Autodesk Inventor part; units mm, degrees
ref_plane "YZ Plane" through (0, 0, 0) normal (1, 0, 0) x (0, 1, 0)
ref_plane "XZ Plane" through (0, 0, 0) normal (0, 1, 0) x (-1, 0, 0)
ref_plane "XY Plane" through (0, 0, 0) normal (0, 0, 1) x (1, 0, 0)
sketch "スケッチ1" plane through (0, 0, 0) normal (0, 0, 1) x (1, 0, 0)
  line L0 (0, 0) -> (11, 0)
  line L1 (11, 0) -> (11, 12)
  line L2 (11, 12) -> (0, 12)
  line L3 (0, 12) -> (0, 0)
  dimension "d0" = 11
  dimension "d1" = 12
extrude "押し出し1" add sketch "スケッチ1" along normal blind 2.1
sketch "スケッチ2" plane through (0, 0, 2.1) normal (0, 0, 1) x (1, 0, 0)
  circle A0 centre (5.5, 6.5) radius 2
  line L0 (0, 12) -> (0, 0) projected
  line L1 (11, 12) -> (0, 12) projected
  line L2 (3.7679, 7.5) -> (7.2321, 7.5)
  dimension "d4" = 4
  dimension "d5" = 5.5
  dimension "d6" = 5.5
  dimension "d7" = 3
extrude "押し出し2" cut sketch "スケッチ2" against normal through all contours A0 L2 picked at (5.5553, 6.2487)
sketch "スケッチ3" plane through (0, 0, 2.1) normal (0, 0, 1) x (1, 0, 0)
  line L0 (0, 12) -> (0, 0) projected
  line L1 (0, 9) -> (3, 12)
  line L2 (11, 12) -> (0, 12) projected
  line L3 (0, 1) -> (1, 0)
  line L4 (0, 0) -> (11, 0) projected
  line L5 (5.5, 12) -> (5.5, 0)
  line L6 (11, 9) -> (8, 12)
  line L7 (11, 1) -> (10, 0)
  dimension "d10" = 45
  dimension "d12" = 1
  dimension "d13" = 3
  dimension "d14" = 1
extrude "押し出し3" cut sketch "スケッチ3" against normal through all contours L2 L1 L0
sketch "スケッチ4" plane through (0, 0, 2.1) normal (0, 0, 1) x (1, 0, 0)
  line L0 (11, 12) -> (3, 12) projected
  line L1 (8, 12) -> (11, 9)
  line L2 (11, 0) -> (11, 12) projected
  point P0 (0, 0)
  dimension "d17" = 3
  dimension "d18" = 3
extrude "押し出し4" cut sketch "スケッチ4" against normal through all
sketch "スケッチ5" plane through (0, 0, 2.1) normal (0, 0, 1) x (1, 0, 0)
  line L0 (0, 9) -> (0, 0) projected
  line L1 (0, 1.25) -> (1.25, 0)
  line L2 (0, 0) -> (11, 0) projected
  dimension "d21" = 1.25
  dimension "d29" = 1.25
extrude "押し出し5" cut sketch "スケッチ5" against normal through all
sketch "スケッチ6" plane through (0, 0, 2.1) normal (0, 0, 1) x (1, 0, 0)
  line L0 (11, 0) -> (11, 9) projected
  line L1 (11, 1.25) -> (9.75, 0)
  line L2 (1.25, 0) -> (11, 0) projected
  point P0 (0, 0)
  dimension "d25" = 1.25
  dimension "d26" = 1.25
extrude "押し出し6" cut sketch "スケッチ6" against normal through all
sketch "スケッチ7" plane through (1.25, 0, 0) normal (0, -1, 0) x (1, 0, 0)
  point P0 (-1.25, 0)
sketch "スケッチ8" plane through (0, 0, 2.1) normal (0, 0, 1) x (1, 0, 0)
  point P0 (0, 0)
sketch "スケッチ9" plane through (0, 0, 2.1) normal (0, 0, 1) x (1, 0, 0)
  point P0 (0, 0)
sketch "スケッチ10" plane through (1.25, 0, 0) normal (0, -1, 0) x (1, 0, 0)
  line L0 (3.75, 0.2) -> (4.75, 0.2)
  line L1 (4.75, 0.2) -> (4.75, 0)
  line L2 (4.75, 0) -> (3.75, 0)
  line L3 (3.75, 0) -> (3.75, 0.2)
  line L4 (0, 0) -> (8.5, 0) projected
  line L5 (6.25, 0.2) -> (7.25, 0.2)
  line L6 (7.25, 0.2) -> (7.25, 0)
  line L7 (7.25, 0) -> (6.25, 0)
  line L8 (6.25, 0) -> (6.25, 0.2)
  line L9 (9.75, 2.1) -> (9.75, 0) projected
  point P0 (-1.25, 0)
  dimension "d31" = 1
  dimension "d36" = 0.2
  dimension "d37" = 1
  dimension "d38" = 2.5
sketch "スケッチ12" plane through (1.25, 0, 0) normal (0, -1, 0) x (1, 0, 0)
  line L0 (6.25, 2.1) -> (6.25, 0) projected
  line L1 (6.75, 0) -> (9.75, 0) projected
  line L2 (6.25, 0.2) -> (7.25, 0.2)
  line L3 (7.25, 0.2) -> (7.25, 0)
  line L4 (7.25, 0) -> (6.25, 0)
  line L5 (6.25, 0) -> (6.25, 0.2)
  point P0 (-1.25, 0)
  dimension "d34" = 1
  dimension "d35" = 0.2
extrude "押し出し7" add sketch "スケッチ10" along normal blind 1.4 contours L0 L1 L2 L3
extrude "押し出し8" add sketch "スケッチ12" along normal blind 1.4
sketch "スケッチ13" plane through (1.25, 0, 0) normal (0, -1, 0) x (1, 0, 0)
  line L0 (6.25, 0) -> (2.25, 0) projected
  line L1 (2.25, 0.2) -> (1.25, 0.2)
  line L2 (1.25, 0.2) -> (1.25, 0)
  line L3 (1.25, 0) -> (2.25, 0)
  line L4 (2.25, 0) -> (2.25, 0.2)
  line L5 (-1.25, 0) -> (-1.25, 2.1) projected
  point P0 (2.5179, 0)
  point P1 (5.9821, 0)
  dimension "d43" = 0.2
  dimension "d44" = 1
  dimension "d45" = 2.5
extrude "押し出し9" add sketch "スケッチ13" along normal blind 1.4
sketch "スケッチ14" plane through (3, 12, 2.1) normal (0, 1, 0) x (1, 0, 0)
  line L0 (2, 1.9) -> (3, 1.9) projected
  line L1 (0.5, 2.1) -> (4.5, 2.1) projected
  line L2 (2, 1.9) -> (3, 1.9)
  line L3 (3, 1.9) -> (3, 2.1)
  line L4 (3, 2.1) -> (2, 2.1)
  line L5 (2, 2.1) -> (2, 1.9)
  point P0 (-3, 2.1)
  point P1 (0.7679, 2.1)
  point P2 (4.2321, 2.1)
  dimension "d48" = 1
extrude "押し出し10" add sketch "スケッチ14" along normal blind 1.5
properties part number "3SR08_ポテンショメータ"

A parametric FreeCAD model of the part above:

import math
import FreeCAD as App
import Part
import Sketcher
from FreeCAD import Vector
Q = App.Units.Quantity

doc = App.newDocument("Part")
body = doc.addObject("PartDesign::Body", "Body")

# Sketch on XY plane
sketch1 = body.newObject("Sketcher::SketchObject", "Sketch")
sketch1.AttachmentSupport = (doc.getObject("XY_Plane"), [""])
sketch1.MapMode = "FlatFace"
sketch1.addGeometry([
    Part.LineSegment(Vector(0, 12, 0), Vector(0, 0, 0)),
    Part.LineSegment(Vector(0, 0, 0), Vector(11, 0, 0)),
    Part.LineSegment(Vector(11, 0, 0), Vector(11, 12, 0)),
    Part.LineSegment(Vector(11, 12, 0), Vector(0, 12, 0)),
], False)
sketch1.addConstraint([
    Sketcher.Constraint("Coincident", 0, 2, 1, 1),
    Sketcher.Constraint("Coincident", 1, 2, 2, 1),
    Sketcher.Constraint("Coincident", 2, 2, 3, 1),
    Sketcher.Constraint("Coincident", 3, 2, 0, 1),
    Sketcher.Constraint("Vertical", 0),
    Sketcher.Constraint("Horizontal", 1),
    Sketcher.Constraint("Vertical", 2),
    Sketcher.Constraint("Horizontal", 3),
    Sketcher.Constraint("Coincident", 0, 2, -1, 1),
    Sketcher.Constraint("DistanceX", 1, 1, 1, 2, Q("11 mm")),
    Sketcher.Constraint("DistanceY", 0, 2, 0, 1, Q("12 mm")),
])
pad1 = body.newObject("PartDesign::Pad", "Pad")
pad1.Profile = sketch1
pad1.Length = 2.1

# Sketch on XY plane
sketch2 = body.newObject("Sketcher::SketchObject", "Sketch001")
sketch2.AttachmentSupport = (doc.getObject("XY_Plane"), [""])
sketch2.MapMode = "FlatFace"
sketch2.AttachmentOffset = App.Placement(Vector(0, 0, 2.1), App.Rotation())
sketch2.addGeometry([
    Part.ArcOfCircle(Part.Circle(Vector(5.5, 6.5, 0), Vector(0, 0, 1), 2), math.radians(150), math.radians(390)),
    Part.LineSegment(Vector(3.8, 7.5, 0), Vector(7.2, 7.5, 0)),
], False)
sketch2.addConstraint([
    Sketcher.Constraint("Coincident", 0, 1, 1, 1),
    Sketcher.Constraint("Coincident", 1, 2, 0, 2),
    Sketcher.Constraint("Horizontal", 1),
    Sketcher.Constraint("Radius", 0, Q("2 mm")),
    Sketcher.Constraint("DistanceX", -1, 1, 0, 3, Q("5.5 mm")),
    Sketcher.Constraint("DistanceY", 0, 3, 0, 1, Q("1 mm")),
    Sketcher.Constraint("DistanceY", -1, 1, 0, 3, Q("6.5 mm")),
])
pocket1 = body.newObject("PartDesign::Pocket", "Pocket")
pocket1.Profile = sketch2
pocket1.Type = "ThroughAll"

# Sketch on XY plane
sketch3 = body.newObject("Sketcher::SketchObject", "Sketch002")
sketch3.AttachmentSupport = (doc.getObject("XY_Plane"), [""])
sketch3.MapMode = "FlatFace"
sketch3.AttachmentOffset = App.Placement(Vector(0, 0, 2.1), App.Rotation())
sketch3.addGeometry([
    Part.LineSegment(Vector(3, 12, 0), Vector(0, 12, 0)),
    Part.LineSegment(Vector(0, 12, 0), Vector(0, 9, 0)),
    Part.LineSegment(Vector(0, 9, 0), Vector(3, 12, 0)),
], False)
sketch3.addConstraint([
    Sketcher.Constraint("Coincident", 0, 2, 1, 1),
    Sketcher.Constraint("Coincident", 1, 2, 2, 1),
    Sketcher.Constraint("Coincident", 2, 2, 0, 1),
    Sketcher.Constraint("Horizontal", 0),
    Sketcher.Constraint("Vertical", 1),
    Sketcher.Constraint("PointOnObject", 0, 2, -2),
    Sketcher.Constraint("Equal", 0, 1),
    Sketcher.Constraint("DistanceX", 0, 2, 0, 1, Q("3 mm")),
    Sketcher.Constraint("DistanceY", -1, 1, 0, 2, Q("12 mm")),
])
pocket2 = body.newObject("PartDesign::Pocket", "Pocket001")
pocket2.Profile = sketch3
pocket2.Type = "ThroughAll"

# Sketch on XY plane
sketch4 = body.newObject("Sketcher::SketchObject", "Sketch003")
sketch4.AttachmentSupport = (doc.getObject("XY_Plane"), [""])
sketch4.MapMode = "FlatFace"
sketch4.AttachmentOffset = App.Placement(Vector(0, 0, 2.1), App.Rotation())
sketch4.addGeometry([
    Part.LineSegment(Vector(11, 9, 0), Vector(11, 12, 0)),
    Part.LineSegment(Vector(11, 12, 0), Vector(8, 12, 0)),
    Part.LineSegment(Vector(8, 12, 0), Vector(11, 9, 0)),
], False)
sketch4.addConstraint([
    Sketcher.Constraint("Coincident", 0, 2, 1, 1),
    Sketcher.Constraint("Coincident", 1, 2, 2, 1),
    Sketcher.Constraint("Coincident", 2, 2, 0, 1),
    Sketcher.Constraint("Vertical", 0),
    Sketcher.Constraint("Horizontal", 1),
    Sketcher.Constraint("Equal", 1, 0),
    Sketcher.Constraint("DistanceX", 1, 2, 1, 1, Q("3 mm")),
    Sketcher.Constraint("DistanceX", -1, 1, 0, 2, Q("11 mm")),
    Sketcher.Constraint("DistanceY", -1, 1, 0, 2, Q("12 mm")),
])
pocket3 = body.newObject("PartDesign::Pocket", "Pocket002")
pocket3.Profile = sketch4
pocket3.Type = "ThroughAll"

# Sketch on XY plane
sketch5 = body.newObject("Sketcher::SketchObject", "Sketch004")
sketch5.AttachmentSupport = (doc.getObject("XY_Plane"), [""])
sketch5.MapMode = "FlatFace"
sketch5.AttachmentOffset = App.Placement(Vector(0, 0, 2.1), App.Rotation())
sketch5.addGeometry([
    Part.LineSegment(Vector(1.2, 0, 0), Vector(0, 1.2, 0)),
    Part.LineSegment(Vector(0, 1.2, 0), Vector(0, 0, 0)),
    Part.LineSegment(Vector(0, 0, 0), Vector(1.2, 0, 0)),
], False)
sketch5.addConstraint([
    Sketcher.Constraint("Coincident", 0, 2, 1, 1),
    Sketcher.Constraint("Coincident", 1, 2, 2, 1),
    Sketcher.Constraint("Coincident", 2, 2, 0, 1),
    Sketcher.Constraint("Vertical", 1),
    Sketcher.Constraint("Horizontal", 2),
    Sketcher.Constraint("Coincident", 1, 2, -1, 1),
    Sketcher.Constraint("Equal", 2, 1),
    Sketcher.Constraint("DistanceX", 2, 1, 2, 2, Q("1.25 mm")),
])
pocket4 = body.newObject("PartDesign::Pocket", "Pocket003")
pocket4.Profile = sketch5
pocket4.Type = "ThroughAll"

# Sketch on XY plane
sketch6 = body.newObject("Sketcher::SketchObject", "Sketch005")
sketch6.AttachmentSupport = (doc.getObject("XY_Plane"), [""])
sketch6.MapMode = "FlatFace"
sketch6.AttachmentOffset = App.Placement(Vector(0, 0, 2.1), App.Rotation())
sketch6.addGeometry([
    Part.LineSegment(Vector(9.8, 0, 0), Vector(11, 0, 0)),
    Part.LineSegment(Vector(11, 0, 0), Vector(11, 1.2, 0)),
    Part.LineSegment(Vector(11, 1.2, 0), Vector(9.8, 0, 0)),
], False)
sketch6.addConstraint([
    Sketcher.Constraint("Coincident", 0, 2, 1, 1),
    Sketcher.Constraint("Coincident", 1, 2, 2, 1),
    Sketcher.Constraint("Coincident", 2, 2, 0, 1),
    Sketcher.Constraint("Horizontal", 0),
    Sketcher.Constraint("Vertical", 1),
    Sketcher.Constraint("PointOnObject", 0, 2, -1),
    Sketcher.Constraint("Equal", 0, 1),
    Sketcher.Constraint("DistanceX", 0, 1, 0, 2, Q("1.25 mm")),
    Sketcher.Constraint("DistanceX", -1, 1, 0, 2, Q("11 mm")),
])
pocket5 = body.newObject("PartDesign::Pocket", "Pocket004")
pocket5.Profile = sketch6
pocket5.Type = "ThroughAll"

# Sketch on XZ plane
sketch7 = body.newObject("Sketcher::SketchObject", "Sketch006")
sketch7.AttachmentSupport = (doc.getObject("XZ_Plane"), [""])
sketch7.MapMode = "FlatFace"
sketch7.addGeometry([
    Part.LineSegment(Vector(6, 0.2, 0), Vector(5, 0.2, 0)),
    Part.LineSegment(Vector(5, 0.2, 0), Vector(5, 0, 0)),
    Part.LineSegment(Vector(5, 0, 0), Vector(6, 0, 0)),
    Part.LineSegment(Vector(6, 0, 0), Vector(6, 0.2, 0)),
], False)
sketch7.addConstraint([
    Sketcher.Constraint("Coincident", 0, 2, 1, 1),
    Sketcher.Constraint("Coincident", 1, 2, 2, 1),
    Sketcher.Constraint("Coincident", 2, 2, 3, 1),
    Sketcher.Constraint("Coincident", 3, 2, 0, 1),
    Sketcher.Constraint("Horizontal", 0),
    Sketcher.Constraint("Vertical", 1),
    Sketcher.Constraint("Horizontal", 2),
    Sketcher.Constraint("Vertical", 3),
    Sketcher.Constraint("PointOnObject", 1, 2, -1),
    Sketcher.Constraint("DistanceX", 0, 2, 0, 1, Q("1 mm")),
    Sketcher.Constraint("DistanceY", 1, 2, 1, 1, Q("0.2 mm")),
    Sketcher.Constraint("DistanceX", -1, 1, 0, 2, Q("5 mm")),
])
pad2 = body.newObject("PartDesign::Pad", "Pad001")
pad2.Profile = sketch7
pad2.Length = 1.4

# Sketch on XZ plane
sketch8 = body.newObject("Sketcher::SketchObject", "Sketch007")
sketch8.AttachmentSupport = (doc.getObject("XZ_Plane"), [""])
sketch8.MapMode = "FlatFace"
sketch8.addGeometry([
    Part.LineSegment(Vector(8.5, 0.2, 0), Vector(7.5, 0.2, 0)),
    Part.LineSegment(Vector(7.5, 0.2, 0), Vector(7.5, 0, 0)),
    Part.LineSegment(Vector(7.5, 0, 0), Vector(8.5, 0, 0)),
    Part.LineSegment(Vector(8.5, 0, 0), Vector(8.5, 0.2, 0)),
], False)
sketch8.addConstraint([
    Sketcher.Constraint("Coincident", 0, 2, 1, 1),
    Sketcher.Constraint("Coincident", 1, 2, 2, 1),
    Sketcher.Constraint("Coincident", 2, 2, 3, 1),
    Sketcher.Constraint("Coincident", 3, 2, 0, 1),
    Sketcher.Constraint("Horizontal", 0),
    Sketcher.Constraint("Vertical", 1),
    Sketcher.Constraint("Horizontal", 2),
    Sketcher.Constraint("Vertical", 3),
    Sketcher.Constraint("PointOnObject", 1, 2, -1),
    Sketcher.Constraint("DistanceX", 0, 2, 0, 1, Q("1 mm")),
    Sketcher.Constraint("DistanceY", 1, 2, 1, 1, Q("0.2 mm")),
    Sketcher.Constraint("DistanceX", -1, 1, 0, 2, Q("7.5 mm")),
])
pad3 = body.newObject("PartDesign::Pad", "Pad002")
pad3.Profile = sketch8
pad3.Length = 1.4

# Sketch on XZ plane
sketch9 = body.newObject("Sketcher::SketchObject", "Sketch008")
sketch9.AttachmentSupport = (doc.getObject("XZ_Plane"), [""])
sketch9.MapMode = "FlatFace"
sketch9.addGeometry([
    Part.LineSegment(Vector(3.5, 0, 0), Vector(3.5, 0.2, 0)),
    Part.LineSegment(Vector(3.5, 0.2, 0), Vector(2.5, 0.2, 0)),
    Part.LineSegment(Vector(2.5, 0.2, 0), Vector(2.5, 0, 0)),
    Part.LineSegment(Vector(2.5, 0, 0), Vector(3.5, 0, 0)),
], False)
sketch9.addConstraint([
    Sketcher.Constraint("Coincident", 0, 2, 1, 1),
    Sketcher.Constraint("Coincident", 1, 2, 2, 1),
    Sketcher.Constraint("Coincident", 2, 2, 3, 1),
    Sketcher.Constraint("Coincident", 3, 2, 0, 1),
    Sketcher.Constraint("Vertical", 0),
    Sketcher.Constraint("Horizontal", 1),
    Sketcher.Constraint("Vertical", 2),
    Sketcher.Constraint("Horizontal", 3),
    Sketcher.Constraint("PointOnObject", 2, 2, -1),
    Sketcher.Constraint("DistanceX", 1, 2, 1, 1, Q("1 mm")),
    Sketcher.Constraint("DistanceY", 0, 1, 0, 2, Q("0.2 mm")),
    Sketcher.Constraint("DistanceX", -1, 1, 1, 2, Q("2.5 mm")),
])
pad4 = body.newObject("PartDesign::Pad", "Pad003")
pad4.Profile = sketch9
pad4.Length = 1.4

# Sketch on XZ plane
sketch10 = body.newObject("Sketcher::SketchObject", "Sketch009")
sketch10.AttachmentSupport = (doc.getObject("XZ_Plane"), [""])
sketch10.MapMode = "FlatFace"
sketch10.AttachmentOffset = App.Placement(Vector(0, 0, -12), App.Rotation())
sketch10.addGeometry([
    Part.LineSegment(Vector(5, 0, 0), Vector(5, 0.2, 0)),
    Part.LineSegment(Vector(5, 0.2, 0), Vector(6, 0.2, 0)),
    Part.LineSegment(Vector(6, 0.2, 0), Vector(6, 0, 0)),
    Part.LineSegment(Vector(6, 0, 0), Vector(5, 0, 0)),
], False)
sketch10.addConstraint([
    Sketcher.Constraint("Coincident", 0, 2, 1, 1),
    Sketcher.Constraint("Coincident", 1, 2, 2, 1),
    Sketcher.Constraint("Coincident", 2, 2, 3, 1),
    Sketcher.Constraint("Coincident", 3, 2, 0, 1),
    Sketcher.Constraint("Vertical", 0),
    Sketcher.Constraint("Horizontal", 1),
    Sketcher.Constraint("Vertical", 2),
    Sketcher.Constraint("Horizontal", 3),
    Sketcher.Constraint("PointOnObject", 2, 2, -1),
    Sketcher.Constraint("DistanceX", 1, 1, 1, 2, Q("1 mm")),
    Sketcher.Constraint("DistanceY", 0, 1, 0, 2, Q("0.2 mm")),
    Sketcher.Constraint("DistanceX", -1, 1, 0, 2, Q("5 mm")),
])
pad5 = body.newObject("PartDesign::Pad", "Pad004")
pad5.Profile = sketch10
pad5.Length = 1.5
pad5.Reversed = True

doc.recompute()
